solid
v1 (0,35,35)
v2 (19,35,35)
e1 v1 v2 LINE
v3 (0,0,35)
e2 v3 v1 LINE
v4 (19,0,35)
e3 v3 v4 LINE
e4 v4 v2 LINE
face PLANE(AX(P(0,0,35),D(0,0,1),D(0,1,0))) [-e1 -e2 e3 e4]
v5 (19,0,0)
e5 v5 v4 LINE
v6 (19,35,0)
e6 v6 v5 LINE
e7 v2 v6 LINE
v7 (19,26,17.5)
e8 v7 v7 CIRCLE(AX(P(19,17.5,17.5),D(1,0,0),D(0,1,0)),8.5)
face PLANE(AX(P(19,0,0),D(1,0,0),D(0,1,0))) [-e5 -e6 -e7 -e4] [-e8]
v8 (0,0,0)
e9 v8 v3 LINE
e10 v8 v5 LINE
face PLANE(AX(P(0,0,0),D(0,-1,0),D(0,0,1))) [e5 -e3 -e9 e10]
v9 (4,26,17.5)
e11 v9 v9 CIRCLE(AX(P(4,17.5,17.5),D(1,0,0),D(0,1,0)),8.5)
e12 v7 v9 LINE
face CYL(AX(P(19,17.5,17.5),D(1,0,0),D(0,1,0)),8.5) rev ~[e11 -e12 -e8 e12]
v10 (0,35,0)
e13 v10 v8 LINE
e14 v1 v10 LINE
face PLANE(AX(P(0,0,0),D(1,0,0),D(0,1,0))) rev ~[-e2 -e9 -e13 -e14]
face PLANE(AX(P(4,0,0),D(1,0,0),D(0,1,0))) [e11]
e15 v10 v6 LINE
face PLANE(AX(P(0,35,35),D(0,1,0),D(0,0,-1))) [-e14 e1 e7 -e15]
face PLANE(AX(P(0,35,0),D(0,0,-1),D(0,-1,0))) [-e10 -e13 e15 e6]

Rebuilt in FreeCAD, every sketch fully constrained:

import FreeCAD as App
import Part
import Sketcher

doc = App.newDocument("Part")
body = doc.addObject("PartDesign::Body", "Body")

sketch1 = doc.addObject("Sketcher::SketchObject", "Sketch")
body.addObject(sketch1)
sketch1.AttachmentSupport = (doc.YZ_Plane, [""])
sketch1.MapMode = "FlatFace"
sketch1.addGeometry(Part.LineSegment(App.Vector(0, 35, 0), App.Vector(0, 0, 0)), False)
sketch1.addGeometry(Part.LineSegment(App.Vector(0, 0, 0), App.Vector(35, 0, 0)), False)
sketch1.addGeometry(Part.LineSegment(App.Vector(35, 0, 0), App.Vector(35, 35, 0)), False)
sketch1.addGeometry(Part.LineSegment(App.Vector(35, 35, 0), App.Vector(0, 35, 0)), False)
sketch1.addConstraint(Sketcher.Constraint("Coincident", 0, 2, 1, 1))
sketch1.addConstraint(Sketcher.Constraint("Coincident", 1, 2, 2, 1))
sketch1.addConstraint(Sketcher.Constraint("Coincident", 2, 2, 3, 1))
sketch1.addConstraint(Sketcher.Constraint("Coincident", 3, 2, 0, 1))
sketch1.addConstraint(Sketcher.Constraint("Vertical", 0))
sketch1.addConstraint(Sketcher.Constraint("Horizontal", 1))
sketch1.addConstraint(Sketcher.Constraint("Vertical", 2))
sketch1.addConstraint(Sketcher.Constraint("Horizontal", 3))
sketch1.addConstraint(Sketcher.Constraint("Coincident", 0, 2, -1, 1))
sketch1.addConstraint(Sketcher.Constraint("Equal", 3, 0))
sketch1.addConstraint(Sketcher.Constraint("DistanceX", 1, 1, 1, 2, 35.0))
pad1 = doc.addObject("PartDesign::Pad", "Pad")
body.addObject(pad1)
pad1.Profile = sketch1
pad1.Length = 19

sketch2 = doc.addObject("Sketcher::SketchObject", "Sketch001")
body.addObject(sketch2)
sketch2.AttachmentSupport = (doc.YZ_Plane, [""])
sketch2.MapMode = "FlatFace"
sketch2.AttachmentOffset = App.Placement(App.Vector(0, 0, 19), App.Rotation())
sketch2.addGeometry(Part.Circle(App.Vector(18, 18, 0), App.Vector(0, 0, 1), 8), False)
sketch2.addConstraint(Sketcher.Constraint("Diameter", 0, 17.0))
sketch2.addConstraint(Sketcher.Constraint("DistanceX", -1, 1, 0, 3, 17.5))
sketch2.addConstraint(Sketcher.Constraint("DistanceY", -1, 1, 0, 3, 17.5))
pocket1 = doc.addObject("PartDesign::Pocket", "Pocket")
body.addObject(pocket1)
pocket1.Profile = sketch2
pocket1.Length = 15

doc.recompute()
